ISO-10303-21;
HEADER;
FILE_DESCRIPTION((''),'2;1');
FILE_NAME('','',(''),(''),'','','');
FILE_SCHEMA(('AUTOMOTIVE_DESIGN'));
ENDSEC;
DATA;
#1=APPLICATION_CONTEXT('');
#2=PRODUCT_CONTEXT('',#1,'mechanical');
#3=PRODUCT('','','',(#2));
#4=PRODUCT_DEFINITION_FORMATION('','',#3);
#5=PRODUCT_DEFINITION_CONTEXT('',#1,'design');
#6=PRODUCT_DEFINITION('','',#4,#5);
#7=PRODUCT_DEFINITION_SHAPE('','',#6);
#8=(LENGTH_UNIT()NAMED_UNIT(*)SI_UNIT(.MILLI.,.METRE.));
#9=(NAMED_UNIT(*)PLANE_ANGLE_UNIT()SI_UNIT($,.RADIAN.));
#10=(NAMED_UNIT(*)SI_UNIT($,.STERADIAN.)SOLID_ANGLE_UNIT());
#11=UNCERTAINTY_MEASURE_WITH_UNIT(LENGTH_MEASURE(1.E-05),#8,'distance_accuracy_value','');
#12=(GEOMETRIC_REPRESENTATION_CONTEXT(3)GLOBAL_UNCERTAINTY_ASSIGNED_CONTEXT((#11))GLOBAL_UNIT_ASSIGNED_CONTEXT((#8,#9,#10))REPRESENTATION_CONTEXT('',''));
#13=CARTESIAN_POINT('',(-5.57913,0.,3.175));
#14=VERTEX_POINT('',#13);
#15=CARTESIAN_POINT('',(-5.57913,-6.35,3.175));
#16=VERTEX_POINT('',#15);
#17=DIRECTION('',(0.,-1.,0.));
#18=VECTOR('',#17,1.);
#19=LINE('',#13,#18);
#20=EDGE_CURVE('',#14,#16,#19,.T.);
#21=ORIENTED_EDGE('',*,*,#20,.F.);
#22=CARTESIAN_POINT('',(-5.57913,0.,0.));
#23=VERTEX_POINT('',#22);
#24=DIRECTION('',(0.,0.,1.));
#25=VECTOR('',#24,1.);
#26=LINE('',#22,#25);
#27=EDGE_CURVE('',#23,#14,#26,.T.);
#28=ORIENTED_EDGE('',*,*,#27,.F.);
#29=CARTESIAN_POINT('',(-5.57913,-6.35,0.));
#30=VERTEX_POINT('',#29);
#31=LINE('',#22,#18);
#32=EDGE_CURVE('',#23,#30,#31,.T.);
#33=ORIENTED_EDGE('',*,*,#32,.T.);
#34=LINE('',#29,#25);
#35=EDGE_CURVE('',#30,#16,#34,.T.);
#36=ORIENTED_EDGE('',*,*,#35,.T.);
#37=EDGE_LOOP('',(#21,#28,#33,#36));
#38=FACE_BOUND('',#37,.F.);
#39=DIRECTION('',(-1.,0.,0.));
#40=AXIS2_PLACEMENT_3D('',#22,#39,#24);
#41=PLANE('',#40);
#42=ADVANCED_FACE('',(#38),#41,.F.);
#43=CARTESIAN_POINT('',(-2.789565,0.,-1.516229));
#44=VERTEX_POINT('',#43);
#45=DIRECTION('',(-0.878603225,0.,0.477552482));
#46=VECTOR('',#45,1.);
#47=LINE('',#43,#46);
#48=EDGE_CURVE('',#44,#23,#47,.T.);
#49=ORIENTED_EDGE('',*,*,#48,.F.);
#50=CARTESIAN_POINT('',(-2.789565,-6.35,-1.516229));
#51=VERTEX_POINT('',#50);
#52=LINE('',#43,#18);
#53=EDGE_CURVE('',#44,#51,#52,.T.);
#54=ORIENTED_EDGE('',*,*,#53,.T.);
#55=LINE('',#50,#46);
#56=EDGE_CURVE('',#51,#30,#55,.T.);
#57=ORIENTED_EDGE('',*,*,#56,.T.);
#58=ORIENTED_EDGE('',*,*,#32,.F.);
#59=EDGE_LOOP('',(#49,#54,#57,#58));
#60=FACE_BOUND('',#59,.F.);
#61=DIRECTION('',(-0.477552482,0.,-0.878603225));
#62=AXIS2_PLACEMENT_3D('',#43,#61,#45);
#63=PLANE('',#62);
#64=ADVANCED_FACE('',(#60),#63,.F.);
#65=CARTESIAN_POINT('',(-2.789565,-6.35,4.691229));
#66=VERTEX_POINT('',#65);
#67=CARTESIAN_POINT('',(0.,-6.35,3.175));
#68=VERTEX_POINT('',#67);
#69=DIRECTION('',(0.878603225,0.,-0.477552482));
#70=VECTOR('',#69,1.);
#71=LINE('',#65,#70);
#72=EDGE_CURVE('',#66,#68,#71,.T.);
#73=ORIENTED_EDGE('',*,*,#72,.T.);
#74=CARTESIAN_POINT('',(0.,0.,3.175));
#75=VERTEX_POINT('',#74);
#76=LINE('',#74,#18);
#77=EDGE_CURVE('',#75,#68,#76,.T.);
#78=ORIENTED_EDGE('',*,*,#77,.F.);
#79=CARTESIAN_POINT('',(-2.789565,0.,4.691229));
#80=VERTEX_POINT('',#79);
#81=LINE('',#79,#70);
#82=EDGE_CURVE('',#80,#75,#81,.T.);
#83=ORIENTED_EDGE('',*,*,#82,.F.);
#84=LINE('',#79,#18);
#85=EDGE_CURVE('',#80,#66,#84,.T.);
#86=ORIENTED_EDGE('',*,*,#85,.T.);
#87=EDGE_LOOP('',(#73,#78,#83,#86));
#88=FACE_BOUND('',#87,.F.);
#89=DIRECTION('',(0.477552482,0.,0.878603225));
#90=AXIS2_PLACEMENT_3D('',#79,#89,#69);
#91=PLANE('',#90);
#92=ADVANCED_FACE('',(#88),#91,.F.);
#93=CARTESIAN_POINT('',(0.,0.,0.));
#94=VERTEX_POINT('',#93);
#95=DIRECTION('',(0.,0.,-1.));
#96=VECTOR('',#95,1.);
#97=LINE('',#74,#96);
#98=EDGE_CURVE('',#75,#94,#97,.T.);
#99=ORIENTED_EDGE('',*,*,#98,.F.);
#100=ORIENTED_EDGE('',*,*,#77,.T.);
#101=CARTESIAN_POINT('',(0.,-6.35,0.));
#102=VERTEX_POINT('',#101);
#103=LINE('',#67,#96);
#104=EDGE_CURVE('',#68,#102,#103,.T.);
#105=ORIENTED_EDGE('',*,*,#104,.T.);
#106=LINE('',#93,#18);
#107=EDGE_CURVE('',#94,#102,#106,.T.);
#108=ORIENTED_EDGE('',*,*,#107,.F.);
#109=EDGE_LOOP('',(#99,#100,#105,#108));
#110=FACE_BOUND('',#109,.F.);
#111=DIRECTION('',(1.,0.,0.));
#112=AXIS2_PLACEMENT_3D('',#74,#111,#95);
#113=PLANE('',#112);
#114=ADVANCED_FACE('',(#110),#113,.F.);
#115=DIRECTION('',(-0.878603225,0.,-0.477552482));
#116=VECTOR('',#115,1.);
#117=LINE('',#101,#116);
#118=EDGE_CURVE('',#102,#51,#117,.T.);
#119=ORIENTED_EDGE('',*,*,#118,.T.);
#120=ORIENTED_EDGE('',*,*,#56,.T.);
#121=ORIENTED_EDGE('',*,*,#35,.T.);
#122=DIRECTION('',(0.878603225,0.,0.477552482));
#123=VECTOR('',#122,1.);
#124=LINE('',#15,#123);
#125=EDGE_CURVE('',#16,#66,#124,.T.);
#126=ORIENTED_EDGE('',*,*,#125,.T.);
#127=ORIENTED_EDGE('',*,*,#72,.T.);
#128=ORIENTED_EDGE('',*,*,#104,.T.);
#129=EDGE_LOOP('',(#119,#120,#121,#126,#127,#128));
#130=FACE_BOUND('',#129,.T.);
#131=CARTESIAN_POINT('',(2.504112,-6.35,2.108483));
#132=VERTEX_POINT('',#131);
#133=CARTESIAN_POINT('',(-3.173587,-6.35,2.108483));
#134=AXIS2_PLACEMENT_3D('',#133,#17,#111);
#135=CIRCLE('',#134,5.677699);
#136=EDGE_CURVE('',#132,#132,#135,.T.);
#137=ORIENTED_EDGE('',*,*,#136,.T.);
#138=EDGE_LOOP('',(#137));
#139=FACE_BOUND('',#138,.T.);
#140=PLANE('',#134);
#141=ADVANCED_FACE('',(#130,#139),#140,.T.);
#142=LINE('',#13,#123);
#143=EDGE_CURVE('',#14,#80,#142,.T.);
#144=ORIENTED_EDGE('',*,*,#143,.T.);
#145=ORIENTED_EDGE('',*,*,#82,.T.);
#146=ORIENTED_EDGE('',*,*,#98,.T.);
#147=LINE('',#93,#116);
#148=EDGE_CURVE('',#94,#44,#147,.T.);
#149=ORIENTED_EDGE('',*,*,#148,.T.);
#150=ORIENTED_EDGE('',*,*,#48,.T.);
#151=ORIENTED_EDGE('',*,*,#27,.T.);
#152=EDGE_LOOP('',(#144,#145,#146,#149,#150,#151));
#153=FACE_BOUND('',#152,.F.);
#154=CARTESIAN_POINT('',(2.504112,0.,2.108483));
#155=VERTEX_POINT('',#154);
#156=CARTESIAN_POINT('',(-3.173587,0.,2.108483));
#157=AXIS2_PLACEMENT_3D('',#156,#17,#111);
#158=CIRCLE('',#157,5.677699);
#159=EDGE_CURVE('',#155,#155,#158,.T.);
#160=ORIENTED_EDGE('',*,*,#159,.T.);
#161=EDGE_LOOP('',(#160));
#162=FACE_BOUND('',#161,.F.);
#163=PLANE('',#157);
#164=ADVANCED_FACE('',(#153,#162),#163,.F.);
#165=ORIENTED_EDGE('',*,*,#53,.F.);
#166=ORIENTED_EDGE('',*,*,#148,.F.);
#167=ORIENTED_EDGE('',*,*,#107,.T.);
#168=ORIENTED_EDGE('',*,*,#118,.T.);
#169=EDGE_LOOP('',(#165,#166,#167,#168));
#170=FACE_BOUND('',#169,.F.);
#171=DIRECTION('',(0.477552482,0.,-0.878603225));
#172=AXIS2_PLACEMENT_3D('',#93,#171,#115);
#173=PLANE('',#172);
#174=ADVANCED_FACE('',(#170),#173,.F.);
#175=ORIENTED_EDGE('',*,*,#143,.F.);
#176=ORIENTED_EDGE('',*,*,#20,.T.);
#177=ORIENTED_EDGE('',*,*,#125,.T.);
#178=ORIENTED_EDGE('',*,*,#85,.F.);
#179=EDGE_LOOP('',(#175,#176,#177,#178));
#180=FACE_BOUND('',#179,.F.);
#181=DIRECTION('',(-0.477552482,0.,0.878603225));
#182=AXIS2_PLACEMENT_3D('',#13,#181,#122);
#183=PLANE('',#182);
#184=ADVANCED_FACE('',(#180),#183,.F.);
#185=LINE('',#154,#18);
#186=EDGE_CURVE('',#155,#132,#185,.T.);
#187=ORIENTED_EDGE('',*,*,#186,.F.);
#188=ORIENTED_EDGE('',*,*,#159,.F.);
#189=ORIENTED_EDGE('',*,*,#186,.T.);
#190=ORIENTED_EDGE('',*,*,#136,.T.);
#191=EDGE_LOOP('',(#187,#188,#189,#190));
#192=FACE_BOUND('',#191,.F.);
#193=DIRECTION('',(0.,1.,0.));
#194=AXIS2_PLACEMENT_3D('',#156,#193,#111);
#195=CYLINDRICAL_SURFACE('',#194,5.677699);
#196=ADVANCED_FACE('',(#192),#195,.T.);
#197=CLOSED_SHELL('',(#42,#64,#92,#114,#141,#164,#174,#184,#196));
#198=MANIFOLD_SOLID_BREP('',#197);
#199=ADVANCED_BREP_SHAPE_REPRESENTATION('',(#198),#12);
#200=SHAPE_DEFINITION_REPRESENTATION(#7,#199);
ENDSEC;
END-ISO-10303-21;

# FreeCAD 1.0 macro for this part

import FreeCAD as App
import Part
import Sketcher
Q = App.Units.Quantity


def add_polygon(sketch, points):
    """Adds a closed chain of lines whose ends are joined by coincident constraints."""
    first, n = sketch.GeometryCount, len(points)
    for a, b in zip(points, points[1:] + points[:1]):
        sketch.addGeometry(Part.LineSegment(App.Vector(*a, 0), App.Vector(*b, 0)), False)
    for i in range(n):
        sketch.addConstraint(Sketcher.Constraint("Coincident", first + i, 2, first + (i + 1) % n, 1))

doc = App.newDocument("Part")
body = doc.addObject("PartDesign::Body", "Body")

# Sketch on XZ plane
sketch1 = doc.addObject("Sketcher::SketchObject", "Sketch")
body.addObject(sketch1)
sketch1.AttachmentSupport = (doc.XZ_Plane, [""])
sketch1.MapMode = "FlatFace"
sketch1.addGeometry(Part.Circle(App.Vector(-3.2, 2.1, 0), App.Vector(0, 0, 1), 5.7), False)  # 0
add_polygon(sketch1, [(-2.8, -1.5), (-5.6, 0), (-5.6, 3.2), (-2.8, 4.7), (0, 3.2), (0, 0)])  # lines 1-6
sketch1.addConstraint([
    Sketcher.Constraint("Vertical", 2),
    Sketcher.Constraint("Vertical", 5),
    Sketcher.Constraint("Coincident", 5, 2, -1, 1),
    Sketcher.Constraint("PointOnObject", 1, 2, -1),
    Sketcher.Constraint("Parallel", 1, 4),
    Sketcher.Constraint("Parallel", 3, 6),
    Sketcher.Constraint("Horizontal", 2, 2, 4, 2),
    Sketcher.Constraint("Vertical", 3, 2, 6, 2),
    Sketcher.Constraint("DistanceY", 2, 1, 2, 2, Q("0.125 in")),
    Sketcher.Constraint("Distance", 1, Q("0.125 in")),
    Sketcher.Constraint("Diameter", 0, 11.355398),
    Sketcher.Constraint("DistanceX", 1, 2, -1, 1, 5.57913),
    Sketcher.Constraint("DistanceX", 0, 3, 3, 2, 0.384022),
    Sketcher.Constraint("DistanceY", -1, 1, 0, 3, 2.108483),
])
pad1 = doc.addObject("PartDesign::Pad", "Pad")
body.addObject(pad1)
pad1.Profile = sketch1
pad1.Length = Q("0.25 in")

doc.recompute()
